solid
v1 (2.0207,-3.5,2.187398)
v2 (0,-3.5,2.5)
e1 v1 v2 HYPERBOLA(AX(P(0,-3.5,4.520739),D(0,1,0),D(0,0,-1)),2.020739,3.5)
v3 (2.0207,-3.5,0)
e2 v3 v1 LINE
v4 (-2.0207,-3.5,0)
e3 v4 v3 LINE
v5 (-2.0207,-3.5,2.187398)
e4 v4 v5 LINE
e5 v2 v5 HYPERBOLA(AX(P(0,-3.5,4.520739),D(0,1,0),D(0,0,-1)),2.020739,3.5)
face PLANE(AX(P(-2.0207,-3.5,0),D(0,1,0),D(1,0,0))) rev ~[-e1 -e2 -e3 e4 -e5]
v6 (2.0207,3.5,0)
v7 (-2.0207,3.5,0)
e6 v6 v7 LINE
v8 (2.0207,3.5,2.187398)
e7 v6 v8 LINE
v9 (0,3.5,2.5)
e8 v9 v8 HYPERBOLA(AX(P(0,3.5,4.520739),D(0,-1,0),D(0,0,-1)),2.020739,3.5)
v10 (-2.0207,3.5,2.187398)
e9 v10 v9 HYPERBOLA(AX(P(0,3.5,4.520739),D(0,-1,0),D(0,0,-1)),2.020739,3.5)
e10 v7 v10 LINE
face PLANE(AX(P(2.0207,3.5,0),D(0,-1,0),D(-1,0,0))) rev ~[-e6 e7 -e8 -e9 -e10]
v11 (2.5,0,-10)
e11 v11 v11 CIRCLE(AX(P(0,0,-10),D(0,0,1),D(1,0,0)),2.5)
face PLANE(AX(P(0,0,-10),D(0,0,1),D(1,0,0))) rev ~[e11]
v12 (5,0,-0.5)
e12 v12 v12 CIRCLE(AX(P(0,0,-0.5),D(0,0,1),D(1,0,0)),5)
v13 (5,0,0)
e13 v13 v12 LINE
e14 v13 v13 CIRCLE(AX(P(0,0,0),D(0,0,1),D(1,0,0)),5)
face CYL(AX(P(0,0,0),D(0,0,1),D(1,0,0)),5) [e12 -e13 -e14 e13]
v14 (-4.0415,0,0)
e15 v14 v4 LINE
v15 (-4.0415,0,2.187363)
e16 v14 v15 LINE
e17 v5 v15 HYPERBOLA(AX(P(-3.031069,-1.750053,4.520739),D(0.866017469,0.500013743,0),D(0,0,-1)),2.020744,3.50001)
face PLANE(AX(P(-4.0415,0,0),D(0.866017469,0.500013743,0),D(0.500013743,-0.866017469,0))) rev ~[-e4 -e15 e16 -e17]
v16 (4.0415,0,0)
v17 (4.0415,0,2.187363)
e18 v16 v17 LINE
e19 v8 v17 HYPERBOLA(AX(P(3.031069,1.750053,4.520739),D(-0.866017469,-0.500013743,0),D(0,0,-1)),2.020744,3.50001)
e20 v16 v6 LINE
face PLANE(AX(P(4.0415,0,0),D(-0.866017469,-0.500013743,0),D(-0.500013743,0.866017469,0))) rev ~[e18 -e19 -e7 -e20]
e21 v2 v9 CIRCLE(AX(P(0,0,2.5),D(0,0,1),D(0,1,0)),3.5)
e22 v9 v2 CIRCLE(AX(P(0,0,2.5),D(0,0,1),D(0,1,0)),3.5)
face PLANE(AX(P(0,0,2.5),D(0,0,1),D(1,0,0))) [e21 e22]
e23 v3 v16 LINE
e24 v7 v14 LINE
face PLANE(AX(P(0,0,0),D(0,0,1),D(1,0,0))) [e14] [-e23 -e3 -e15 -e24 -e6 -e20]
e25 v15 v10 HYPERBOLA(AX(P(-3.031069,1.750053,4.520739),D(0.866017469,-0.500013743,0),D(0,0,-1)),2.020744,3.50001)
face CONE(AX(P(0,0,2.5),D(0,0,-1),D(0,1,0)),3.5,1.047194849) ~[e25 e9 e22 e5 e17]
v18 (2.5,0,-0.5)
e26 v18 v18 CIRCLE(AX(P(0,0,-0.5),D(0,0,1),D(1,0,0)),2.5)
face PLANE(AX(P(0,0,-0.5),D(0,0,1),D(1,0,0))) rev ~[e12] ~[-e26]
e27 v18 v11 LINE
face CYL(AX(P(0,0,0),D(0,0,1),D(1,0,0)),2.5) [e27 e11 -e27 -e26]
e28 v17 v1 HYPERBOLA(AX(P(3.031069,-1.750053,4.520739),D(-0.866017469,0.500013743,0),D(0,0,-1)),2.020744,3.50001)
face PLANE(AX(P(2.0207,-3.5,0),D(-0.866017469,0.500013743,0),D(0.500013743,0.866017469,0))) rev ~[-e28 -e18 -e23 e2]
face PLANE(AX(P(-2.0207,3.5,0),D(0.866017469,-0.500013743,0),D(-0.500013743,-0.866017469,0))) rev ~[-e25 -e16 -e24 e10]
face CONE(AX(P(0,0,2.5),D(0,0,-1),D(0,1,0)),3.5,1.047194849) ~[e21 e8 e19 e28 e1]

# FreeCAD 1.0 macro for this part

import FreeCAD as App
import Part
import Sketcher

V = App.Vector
Q = App.Units.Quantity

doc = App.newDocument("Part")
body = doc.addObject("PartDesign::Body", "Body")

# Sketch on XY plane
sketch1 = body.newObject("Sketcher::SketchObject", "Sketch")
sketch1.AttachmentSupport = (doc.getObject("XY_Plane"), [""])
sketch1.MapMode = "FlatFace"
sketch1.addGeometry(Part.Circle(V(0, 0, 0), V(0, 0, 1), 2.5), False)
sketch1.addConstraint([
    Sketcher.Constraint("Coincident", 0, 3, -1, 1),
    Sketcher.Constraint("Diameter", 0, 5.0),
])
pad1 = body.newObject("PartDesign::Pad", "Pad")
pad1.Profile = sketch1
pad1.Length = 10
pad1.Reversed = True

# Sketch on XY plane
sketch2 = body.newObject("Sketcher::SketchObject", "Sketch001")
sketch2.AttachmentSupport = (doc.getObject("XY_Plane"), [""])
sketch2.MapMode = "FlatFace"
sketch2.addGeometry([
    Part.LineSegment(V(2, 3.5, 0), V(-2, 3.5, 0)),  # 0
    Part.LineSegment(V(-2, 3.5, 0), V(-4, 0, 0)),  # 1
    Part.LineSegment(V(-4, 0, 0), V(-2, -3.5, 0)),  # 2
    Part.LineSegment(V(-2, -3.5, 0), V(2, -3.5, 0)),  # 3
    Part.LineSegment(V(2, -3.5, 0), V(4, 0, 0)),  # 4
    Part.LineSegment(V(4, 0, 0), V(2, 3.5, 0)),  # 5
], False)
sketch2.addConstraint([
    Sketcher.Constraint("Coincident", 0, 2, 1, 1),
    Sketcher.Constraint("Coincident", 1, 2, 2, 1),
    Sketcher.Constraint("Coincident", 2, 2, 3, 1),
    Sketcher.Constraint("Coincident", 3, 2, 4, 1),
    Sketcher.Constraint("Coincident", 4, 2, 5, 1),
    Sketcher.Constraint("Coincident", 5, 2, 0, 1),
    Sketcher.Constraint("Horizontal", 0),
    Sketcher.Constraint("Horizontal", 3),
    Sketcher.Constraint("Symmetric", 0, 2, 3, 2, -1, 1),
    Sketcher.Constraint("Symmetric", 1, 2, 4, 2, -1, 1),
    Sketcher.Constraint("PointOnObject", 1, 2, -1),
    Sketcher.Constraint("Parallel", 2, 5),
    Sketcher.Constraint("Vertical", 0, 2, 2, 2),
    Sketcher.Constraint("Angle", 1, Q("-120.001 deg")),
    Sketcher.Constraint("DistanceY", 2, 2, 0, 2, 7.0),
    Sketcher.Constraint("DistanceX", 0, 2, 0, 1, 4.0414),
])
pad2 = body.newObject("PartDesign::Pad", "Pad001")
pad2.Profile = sketch2
pad2.Length = 2.5

# Sketch on XY plane
sketch3 = body.newObject("Sketcher::SketchObject", "Sketch002")
sketch3.AttachmentSupport = (doc.getObject("XY_Plane"), [""])
sketch3.MapMode = "FlatFace"
sketch3.addGeometry(Part.Circle(V(0, 0, 0), V(0, 0, 1), 5), False)
sketch3.addConstraint([
    Sketcher.Constraint("Coincident", 0, 3, -1, 1),
    Sketcher.Constraint("Diameter", 0, 10.0),
])
pad3 = body.newObject("PartDesign::Pad", "Pad002")
pad3.Profile = sketch3
pad3.Length = 0.5
pad3.Reversed = True

# Sketch on YZ plane
sketch4 = body.newObject("Sketcher::SketchObject", "Sketch003")
sketch4.AttachmentSupport = (doc.getObject("YZ_Plane"), [""])
sketch4.MapMode = "FlatFace"
sketch4.addGeometry([
    Part.LineSegment(V(7.8, 0, 0), V(7.8, 2.5, 0)),
    Part.LineSegment(V(7.8, 2.5, 0), V(3.5, 2.5, 0)),
    Part.LineSegment(V(3.5, 2.5, 0), V(7.8, 0, 0)),
], False)
sketch4.addConstraint([
    Sketcher.Constraint("Coincident", 0, 2, 1, 1),
    Sketcher.Constraint("Coincident", 1, 2, 2, 1),
    Sketcher.Constraint("Coincident", 2, 2, 0, 1),
    Sketcher.Constraint("Vertical", 0),
    Sketcher.Constraint("Horizontal", 1),
    Sketcher.Constraint("PointOnObject", 2, 2, -1),
    Sketcher.Constraint("Angle", 2, Q("-30.0002 deg")),
    Sketcher.Constraint("Distance", 2, 5.0),
    Sketcher.Constraint("DistanceX", -1, 1, 1, 2, 3.5),
])
groove = body.newObject("PartDesign::Groove", "Groove")
groove.Profile = sketch4
groove.ReferenceAxis = (sketch4, ["V_Axis"])
groove.Angle = 360

doc.recompute()
